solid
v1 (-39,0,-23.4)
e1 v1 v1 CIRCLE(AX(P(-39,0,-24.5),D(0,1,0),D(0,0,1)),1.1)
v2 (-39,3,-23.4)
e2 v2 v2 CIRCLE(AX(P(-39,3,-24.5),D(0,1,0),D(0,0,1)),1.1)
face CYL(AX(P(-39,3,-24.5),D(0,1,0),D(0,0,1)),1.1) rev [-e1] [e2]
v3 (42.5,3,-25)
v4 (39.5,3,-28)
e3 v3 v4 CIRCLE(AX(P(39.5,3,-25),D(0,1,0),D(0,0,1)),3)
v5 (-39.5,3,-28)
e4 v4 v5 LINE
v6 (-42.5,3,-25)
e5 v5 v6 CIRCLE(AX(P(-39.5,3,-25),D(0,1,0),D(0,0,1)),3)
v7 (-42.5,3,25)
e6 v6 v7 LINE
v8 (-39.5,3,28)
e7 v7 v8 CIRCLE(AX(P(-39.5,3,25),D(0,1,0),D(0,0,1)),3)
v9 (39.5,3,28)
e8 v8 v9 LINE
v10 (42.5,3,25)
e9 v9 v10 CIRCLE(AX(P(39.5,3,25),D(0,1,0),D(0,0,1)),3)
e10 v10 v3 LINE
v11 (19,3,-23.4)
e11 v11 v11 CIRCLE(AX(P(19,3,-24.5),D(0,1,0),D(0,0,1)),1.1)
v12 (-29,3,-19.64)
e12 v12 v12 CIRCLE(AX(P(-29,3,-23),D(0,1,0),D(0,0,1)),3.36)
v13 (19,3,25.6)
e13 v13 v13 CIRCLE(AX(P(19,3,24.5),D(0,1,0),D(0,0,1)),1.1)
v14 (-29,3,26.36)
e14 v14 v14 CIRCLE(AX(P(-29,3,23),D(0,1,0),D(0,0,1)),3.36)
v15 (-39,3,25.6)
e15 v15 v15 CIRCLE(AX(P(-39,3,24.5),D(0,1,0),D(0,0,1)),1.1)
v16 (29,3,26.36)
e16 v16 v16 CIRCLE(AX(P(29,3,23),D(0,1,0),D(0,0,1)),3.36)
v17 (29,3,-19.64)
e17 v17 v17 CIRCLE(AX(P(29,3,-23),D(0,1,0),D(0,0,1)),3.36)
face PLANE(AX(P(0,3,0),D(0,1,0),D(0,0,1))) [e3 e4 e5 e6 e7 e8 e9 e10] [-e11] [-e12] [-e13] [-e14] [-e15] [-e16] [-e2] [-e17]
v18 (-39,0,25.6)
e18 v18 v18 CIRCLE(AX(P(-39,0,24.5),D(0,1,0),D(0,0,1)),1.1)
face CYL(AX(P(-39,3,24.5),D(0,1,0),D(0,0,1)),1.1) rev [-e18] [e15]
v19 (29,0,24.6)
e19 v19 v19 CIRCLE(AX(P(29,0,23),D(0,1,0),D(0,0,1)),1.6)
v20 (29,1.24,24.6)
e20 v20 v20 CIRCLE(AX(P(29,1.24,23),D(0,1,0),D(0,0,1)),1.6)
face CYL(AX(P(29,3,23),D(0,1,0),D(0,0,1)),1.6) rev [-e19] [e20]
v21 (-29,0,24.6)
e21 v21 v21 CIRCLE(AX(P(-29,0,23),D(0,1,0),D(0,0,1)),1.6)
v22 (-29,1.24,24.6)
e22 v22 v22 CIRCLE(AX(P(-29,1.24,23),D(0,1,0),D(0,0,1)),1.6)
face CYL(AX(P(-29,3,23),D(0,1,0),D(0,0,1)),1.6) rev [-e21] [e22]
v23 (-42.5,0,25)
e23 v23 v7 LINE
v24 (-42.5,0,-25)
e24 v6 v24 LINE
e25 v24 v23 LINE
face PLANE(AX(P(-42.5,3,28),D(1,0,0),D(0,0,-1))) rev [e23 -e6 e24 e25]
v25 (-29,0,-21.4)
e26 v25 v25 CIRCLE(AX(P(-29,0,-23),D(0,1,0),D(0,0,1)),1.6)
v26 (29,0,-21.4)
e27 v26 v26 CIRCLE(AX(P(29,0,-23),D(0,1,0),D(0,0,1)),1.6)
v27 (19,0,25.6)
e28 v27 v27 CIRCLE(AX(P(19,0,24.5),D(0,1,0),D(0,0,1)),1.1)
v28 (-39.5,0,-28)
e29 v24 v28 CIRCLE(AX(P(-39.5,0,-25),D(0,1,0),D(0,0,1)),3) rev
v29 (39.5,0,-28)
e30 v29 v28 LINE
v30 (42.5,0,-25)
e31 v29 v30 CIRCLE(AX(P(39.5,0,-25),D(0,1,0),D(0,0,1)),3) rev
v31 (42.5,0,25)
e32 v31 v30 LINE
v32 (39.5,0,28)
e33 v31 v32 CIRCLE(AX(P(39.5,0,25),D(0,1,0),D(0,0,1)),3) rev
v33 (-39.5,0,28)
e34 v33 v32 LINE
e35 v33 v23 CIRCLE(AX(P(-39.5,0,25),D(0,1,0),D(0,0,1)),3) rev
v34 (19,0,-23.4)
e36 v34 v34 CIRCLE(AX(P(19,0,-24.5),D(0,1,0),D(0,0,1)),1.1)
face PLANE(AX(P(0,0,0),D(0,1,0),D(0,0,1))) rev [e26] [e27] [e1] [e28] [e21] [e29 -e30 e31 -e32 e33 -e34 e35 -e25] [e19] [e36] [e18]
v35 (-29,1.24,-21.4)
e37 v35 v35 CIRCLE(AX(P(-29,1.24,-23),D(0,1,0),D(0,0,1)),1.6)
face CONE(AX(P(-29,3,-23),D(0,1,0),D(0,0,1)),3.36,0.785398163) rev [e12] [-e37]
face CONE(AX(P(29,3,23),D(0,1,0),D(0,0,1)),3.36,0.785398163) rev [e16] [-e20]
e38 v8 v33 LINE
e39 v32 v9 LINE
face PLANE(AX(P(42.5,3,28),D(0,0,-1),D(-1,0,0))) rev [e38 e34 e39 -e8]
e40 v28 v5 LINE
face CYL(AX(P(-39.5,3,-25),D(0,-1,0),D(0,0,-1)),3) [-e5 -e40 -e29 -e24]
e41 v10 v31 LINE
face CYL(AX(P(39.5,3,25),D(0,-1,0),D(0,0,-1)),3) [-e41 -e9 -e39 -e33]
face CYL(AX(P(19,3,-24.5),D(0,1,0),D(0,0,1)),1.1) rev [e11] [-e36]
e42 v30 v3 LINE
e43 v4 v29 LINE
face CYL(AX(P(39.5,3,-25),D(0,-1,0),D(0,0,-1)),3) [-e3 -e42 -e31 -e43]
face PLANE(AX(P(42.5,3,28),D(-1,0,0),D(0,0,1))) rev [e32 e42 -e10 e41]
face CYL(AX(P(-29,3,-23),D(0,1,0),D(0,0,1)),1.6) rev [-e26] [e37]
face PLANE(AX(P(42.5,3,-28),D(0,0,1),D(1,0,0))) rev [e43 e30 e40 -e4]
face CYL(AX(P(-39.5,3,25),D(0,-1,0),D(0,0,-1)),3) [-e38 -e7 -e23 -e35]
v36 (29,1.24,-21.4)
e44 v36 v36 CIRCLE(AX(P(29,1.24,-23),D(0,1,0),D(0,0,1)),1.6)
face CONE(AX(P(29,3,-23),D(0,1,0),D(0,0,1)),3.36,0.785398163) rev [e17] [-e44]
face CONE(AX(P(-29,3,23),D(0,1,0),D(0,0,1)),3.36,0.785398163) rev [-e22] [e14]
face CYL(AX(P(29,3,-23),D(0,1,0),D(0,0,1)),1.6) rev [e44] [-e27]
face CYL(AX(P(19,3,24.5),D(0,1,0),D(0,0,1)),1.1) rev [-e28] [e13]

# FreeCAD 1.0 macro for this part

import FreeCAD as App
import Part
import Sketcher
Q = App.Units.Quantity


def edges_at(feature, points):
    """Names of the edges that pass closest to the given points."""
    edges = feature.Shape.Edges
    near = lambda p: min(range(len(edges)), key=lambda i: edges[i].distToShape(Part.Vertex(*p))[0])
    return sorted({f"Edge{near(p) + 1}" for p in points})

doc = App.newDocument("Part")
body = doc.addObject("PartDesign::Body", "Body")

# Sketch on XZ plane
sketch1 = body.newObject("Sketcher::SketchObject", "Sketch")
sketch1.AttachmentSupport = (doc.getObject("XZ_Plane"), [""])
sketch1.MapMode = "FlatFace"
sketch1.addGeometry([
    Part.LineSegment(App.Vector(-42, -28, 0), App.Vector(-42, 28, 0)),
    Part.LineSegment(App.Vector(-42, 28, 0), App.Vector(42, 28, 0)),
    Part.LineSegment(App.Vector(42, 28, 0), App.Vector(42, -28, 0)),
    Part.LineSegment(App.Vector(42, -28, 0), App.Vector(-42, -28, 0)),
], False)
sketch1.addConstraint([
    Sketcher.Constraint("Coincident", 0, 2, 1, 1),
    Sketcher.Constraint("Coincident", 1, 2, 2, 1),
    Sketcher.Constraint("Coincident", 2, 2, 3, 1),
    Sketcher.Constraint("Coincident", 3, 2, 0, 1),
    Sketcher.Constraint("Vertical", 0),
    Sketcher.Constraint("Horizontal", 1),
    Sketcher.Constraint("Vertical", 2),
    Sketcher.Constraint("Horizontal", 3),
    Sketcher.Constraint("Symmetric", 0, 2, 2, 2, -1, 1),
    Sketcher.Constraint("DistanceX", 1, 1, 1, 2, Q("85 mm")),
    Sketcher.Constraint("DistanceY", 0, 1, 0, 2, Q("56 mm")),
])
pad1 = body.newObject("PartDesign::Pad", "Pad")
pad1.Profile = sketch1
pad1.Length = 3
pad1.Reversed = True

# Sketch on XZ plane
sketch2 = body.newObject("Sketcher::SketchObject", "Sketch001")
sketch2.AttachmentSupport = (doc.getObject("XZ_Plane"), [""])
sketch2.MapMode = "FlatFace"
sketch2.AttachmentOffset = App.Placement(App.Vector(0, 0, -3), App.Rotation())
sketch2.addGeometry([
    Part.Circle(App.Vector(-39, -24.5, 0), App.Vector(0, 0, 1), 1.1),
    Part.Circle(App.Vector(19, 24.5, 0), App.Vector(0, 0, 1), 1.1),
    Part.Circle(App.Vector(19, -24.5, 0), App.Vector(0, 0, 1), 1.1),
    Part.Circle(App.Vector(-39, 24.5, 0), App.Vector(0, 0, 1), 1.1),
], False)
sketch2.addConstraint([
    Sketcher.Constraint("Equal", 0, 1),
    Sketcher.Constraint("Equal", 1, 2),
    Sketcher.Constraint("Equal", 2, 3),
    Sketcher.Constraint("Symmetric", 1, 3, 2, 3, -1),
    Sketcher.Constraint("Symmetric", 0, 3, 3, 3, -1),
    Sketcher.Constraint("Horizontal", 0, 3, 2, 3),
    Sketcher.Constraint("Diameter", 0, Q("2.2 mm")),
    Sketcher.Constraint("DistanceX", 0, 3, -1, 1, Q("39 mm")),
    Sketcher.Constraint("DistanceX", -1, 1, 1, 3, Q("19 mm")),
    Sketcher.Constraint("DistanceY", 0, 3, 1, 3, Q("49 mm")),
])
doc.recompute()
hole = body.newObject("PartDesign::Hole", "Hole")
hole.Profile = sketch2
hole.ThreadType = "None"
hole.Diameter = 2.2
hole.DepthType = "Dimension"
hole.Depth = 5
hole.DrillPoint = "Angled"
hole.DrillPointAngle = 118
hole.Reversed = True
doc.recompute()

fillet = body.newObject("PartDesign::Fillet", "Fillet")
fillet.Base = (hole, edges_at(hole, [
    (-42.5, 1.5, -28),
    (42.5, 1.5, -28),
    (42.5, 1.5, 28),
    (-42.5, 1.5, 28),
]))
fillet.Radius = 3

# Sketch on YZ plane
sketch3 = body.newObject("Sketcher::SketchObject", "Sketch002")
sketch3.AttachmentSupport = (doc.getObject("YZ_Plane"), [""])
sketch3.MapMode = "FlatFace"
sketch3.AttachmentOffset = App.Placement(App.Vector(0, 0, -29), App.Rotation())
sketch3.addGeometry([
    Part.LineSegment(App.Vector(0, -23, 0), App.Vector(3, -23, 0)),  # 0
    Part.LineSegment(App.Vector(3, -23, 0), App.Vector(3, -19.6, 0)),  # 1
    Part.LineSegment(App.Vector(3, -19.6, 0), App.Vector(1.2, -21.4, 0)),  # 2
    Part.LineSegment(App.Vector(1.2, -21.4, 0), App.Vector(0, -21.4, 0)),  # 3
    Part.LineSegment(App.Vector(0, -21.4, 0), App.Vector(0, -23, 0)),  # 4
], False)
sketch3.addGeometry(Part.LineSegment(App.Vector(3, -23, 0), App.Vector(0, -23, 0)), True)  # axis
sketch3.addConstraint([
    Sketcher.Constraint("Coincident", 0, 2, 1, 1),
    Sketcher.Constraint("Coincident", 1, 2, 2, 1),
    Sketcher.Constraint("Coincident", 2, 2, 3, 1),
    Sketcher.Constraint("Coincident", 3, 2, 4, 1),
    Sketcher.Constraint("Coincident", 4, 2, 0, 1),
    Sketcher.Constraint("Horizontal", 0),
    Sketcher.Constraint("Vertical", 1),
    Sketcher.Constraint("Horizontal", 3),
    Sketcher.Constraint("Vertical", 4),
    Sketcher.Constraint("Horizontal", 5),
    Sketcher.Constraint("Coincident", 5, 1, 0, 2),
    Sketcher.Constraint("PointOnObject", 3, 2, -2),
    Sketcher.Constraint("PointOnObject", 5, 2, -2),
    Sketcher.Constraint("DistanceX", 0, 1, 0, 2, Q("3 mm")),
    Sketcher.Constraint("Angle", 2, Q("-135 deg")),
    Sketcher.Constraint("DistanceY", 4, 2, 4, 1, Q("1.6 mm")),
    Sketcher.Constraint("DistanceY", 0, 2, -1, 1, Q("23 mm")),
    Sketcher.Constraint("DistanceX", 3, 2, 3, 1, Q("1.24 mm")),
])
groove = body.newObject("PartDesign::Groove", "Groove")
groove.Profile = sketch3
groove.ReferenceAxis = (sketch3, ["Axis0"])
groove.Angle = 360
doc.recompute()

datumline = body.newObject("PartDesign::Line", "DatumLine")
datumline.Placement = App.Placement(App.Vector(0, 0, 0), App.Rotation(App.Vector(0, 0, 1), App.Vector(0.783497679, 0, 0.621394711)))
linearpattern = body.newObject("PartDesign::LinearPattern", "LinearPattern")
linearpattern.Originals = [groove]
linearpattern.Direction = (datumline, [""])
linearpattern.Mode = "offset"
linearpattern.Offset = 74.027022
linearpattern.Occurrences = 2
body.Tip = linearpattern
doc.recompute()

linearpattern2 = body.newObject("PartDesign::LinearPattern", "LinearPattern001")
linearpattern2.Originals = [groove]
linearpattern2.Direction = (doc.getObject("Z_Axis"), [""])
linearpattern2.Mode = "offset"
linearpattern2.Offset = 46
linearpattern2.Occurrences = 2
body.Tip = linearpattern2
doc.recompute()

linearpattern3 = body.newObject("PartDesign::LinearPattern", "LinearPattern002")
linearpattern3.Originals = [groove]
linearpattern3.Direction = (doc.getObject("X_Axis"), [""])
linearpattern3.Mode = "offset"
linearpattern3.Offset = 58
linearpattern3.Occurrences = 2
body.Tip = linearpattern3

doc.recompute()
